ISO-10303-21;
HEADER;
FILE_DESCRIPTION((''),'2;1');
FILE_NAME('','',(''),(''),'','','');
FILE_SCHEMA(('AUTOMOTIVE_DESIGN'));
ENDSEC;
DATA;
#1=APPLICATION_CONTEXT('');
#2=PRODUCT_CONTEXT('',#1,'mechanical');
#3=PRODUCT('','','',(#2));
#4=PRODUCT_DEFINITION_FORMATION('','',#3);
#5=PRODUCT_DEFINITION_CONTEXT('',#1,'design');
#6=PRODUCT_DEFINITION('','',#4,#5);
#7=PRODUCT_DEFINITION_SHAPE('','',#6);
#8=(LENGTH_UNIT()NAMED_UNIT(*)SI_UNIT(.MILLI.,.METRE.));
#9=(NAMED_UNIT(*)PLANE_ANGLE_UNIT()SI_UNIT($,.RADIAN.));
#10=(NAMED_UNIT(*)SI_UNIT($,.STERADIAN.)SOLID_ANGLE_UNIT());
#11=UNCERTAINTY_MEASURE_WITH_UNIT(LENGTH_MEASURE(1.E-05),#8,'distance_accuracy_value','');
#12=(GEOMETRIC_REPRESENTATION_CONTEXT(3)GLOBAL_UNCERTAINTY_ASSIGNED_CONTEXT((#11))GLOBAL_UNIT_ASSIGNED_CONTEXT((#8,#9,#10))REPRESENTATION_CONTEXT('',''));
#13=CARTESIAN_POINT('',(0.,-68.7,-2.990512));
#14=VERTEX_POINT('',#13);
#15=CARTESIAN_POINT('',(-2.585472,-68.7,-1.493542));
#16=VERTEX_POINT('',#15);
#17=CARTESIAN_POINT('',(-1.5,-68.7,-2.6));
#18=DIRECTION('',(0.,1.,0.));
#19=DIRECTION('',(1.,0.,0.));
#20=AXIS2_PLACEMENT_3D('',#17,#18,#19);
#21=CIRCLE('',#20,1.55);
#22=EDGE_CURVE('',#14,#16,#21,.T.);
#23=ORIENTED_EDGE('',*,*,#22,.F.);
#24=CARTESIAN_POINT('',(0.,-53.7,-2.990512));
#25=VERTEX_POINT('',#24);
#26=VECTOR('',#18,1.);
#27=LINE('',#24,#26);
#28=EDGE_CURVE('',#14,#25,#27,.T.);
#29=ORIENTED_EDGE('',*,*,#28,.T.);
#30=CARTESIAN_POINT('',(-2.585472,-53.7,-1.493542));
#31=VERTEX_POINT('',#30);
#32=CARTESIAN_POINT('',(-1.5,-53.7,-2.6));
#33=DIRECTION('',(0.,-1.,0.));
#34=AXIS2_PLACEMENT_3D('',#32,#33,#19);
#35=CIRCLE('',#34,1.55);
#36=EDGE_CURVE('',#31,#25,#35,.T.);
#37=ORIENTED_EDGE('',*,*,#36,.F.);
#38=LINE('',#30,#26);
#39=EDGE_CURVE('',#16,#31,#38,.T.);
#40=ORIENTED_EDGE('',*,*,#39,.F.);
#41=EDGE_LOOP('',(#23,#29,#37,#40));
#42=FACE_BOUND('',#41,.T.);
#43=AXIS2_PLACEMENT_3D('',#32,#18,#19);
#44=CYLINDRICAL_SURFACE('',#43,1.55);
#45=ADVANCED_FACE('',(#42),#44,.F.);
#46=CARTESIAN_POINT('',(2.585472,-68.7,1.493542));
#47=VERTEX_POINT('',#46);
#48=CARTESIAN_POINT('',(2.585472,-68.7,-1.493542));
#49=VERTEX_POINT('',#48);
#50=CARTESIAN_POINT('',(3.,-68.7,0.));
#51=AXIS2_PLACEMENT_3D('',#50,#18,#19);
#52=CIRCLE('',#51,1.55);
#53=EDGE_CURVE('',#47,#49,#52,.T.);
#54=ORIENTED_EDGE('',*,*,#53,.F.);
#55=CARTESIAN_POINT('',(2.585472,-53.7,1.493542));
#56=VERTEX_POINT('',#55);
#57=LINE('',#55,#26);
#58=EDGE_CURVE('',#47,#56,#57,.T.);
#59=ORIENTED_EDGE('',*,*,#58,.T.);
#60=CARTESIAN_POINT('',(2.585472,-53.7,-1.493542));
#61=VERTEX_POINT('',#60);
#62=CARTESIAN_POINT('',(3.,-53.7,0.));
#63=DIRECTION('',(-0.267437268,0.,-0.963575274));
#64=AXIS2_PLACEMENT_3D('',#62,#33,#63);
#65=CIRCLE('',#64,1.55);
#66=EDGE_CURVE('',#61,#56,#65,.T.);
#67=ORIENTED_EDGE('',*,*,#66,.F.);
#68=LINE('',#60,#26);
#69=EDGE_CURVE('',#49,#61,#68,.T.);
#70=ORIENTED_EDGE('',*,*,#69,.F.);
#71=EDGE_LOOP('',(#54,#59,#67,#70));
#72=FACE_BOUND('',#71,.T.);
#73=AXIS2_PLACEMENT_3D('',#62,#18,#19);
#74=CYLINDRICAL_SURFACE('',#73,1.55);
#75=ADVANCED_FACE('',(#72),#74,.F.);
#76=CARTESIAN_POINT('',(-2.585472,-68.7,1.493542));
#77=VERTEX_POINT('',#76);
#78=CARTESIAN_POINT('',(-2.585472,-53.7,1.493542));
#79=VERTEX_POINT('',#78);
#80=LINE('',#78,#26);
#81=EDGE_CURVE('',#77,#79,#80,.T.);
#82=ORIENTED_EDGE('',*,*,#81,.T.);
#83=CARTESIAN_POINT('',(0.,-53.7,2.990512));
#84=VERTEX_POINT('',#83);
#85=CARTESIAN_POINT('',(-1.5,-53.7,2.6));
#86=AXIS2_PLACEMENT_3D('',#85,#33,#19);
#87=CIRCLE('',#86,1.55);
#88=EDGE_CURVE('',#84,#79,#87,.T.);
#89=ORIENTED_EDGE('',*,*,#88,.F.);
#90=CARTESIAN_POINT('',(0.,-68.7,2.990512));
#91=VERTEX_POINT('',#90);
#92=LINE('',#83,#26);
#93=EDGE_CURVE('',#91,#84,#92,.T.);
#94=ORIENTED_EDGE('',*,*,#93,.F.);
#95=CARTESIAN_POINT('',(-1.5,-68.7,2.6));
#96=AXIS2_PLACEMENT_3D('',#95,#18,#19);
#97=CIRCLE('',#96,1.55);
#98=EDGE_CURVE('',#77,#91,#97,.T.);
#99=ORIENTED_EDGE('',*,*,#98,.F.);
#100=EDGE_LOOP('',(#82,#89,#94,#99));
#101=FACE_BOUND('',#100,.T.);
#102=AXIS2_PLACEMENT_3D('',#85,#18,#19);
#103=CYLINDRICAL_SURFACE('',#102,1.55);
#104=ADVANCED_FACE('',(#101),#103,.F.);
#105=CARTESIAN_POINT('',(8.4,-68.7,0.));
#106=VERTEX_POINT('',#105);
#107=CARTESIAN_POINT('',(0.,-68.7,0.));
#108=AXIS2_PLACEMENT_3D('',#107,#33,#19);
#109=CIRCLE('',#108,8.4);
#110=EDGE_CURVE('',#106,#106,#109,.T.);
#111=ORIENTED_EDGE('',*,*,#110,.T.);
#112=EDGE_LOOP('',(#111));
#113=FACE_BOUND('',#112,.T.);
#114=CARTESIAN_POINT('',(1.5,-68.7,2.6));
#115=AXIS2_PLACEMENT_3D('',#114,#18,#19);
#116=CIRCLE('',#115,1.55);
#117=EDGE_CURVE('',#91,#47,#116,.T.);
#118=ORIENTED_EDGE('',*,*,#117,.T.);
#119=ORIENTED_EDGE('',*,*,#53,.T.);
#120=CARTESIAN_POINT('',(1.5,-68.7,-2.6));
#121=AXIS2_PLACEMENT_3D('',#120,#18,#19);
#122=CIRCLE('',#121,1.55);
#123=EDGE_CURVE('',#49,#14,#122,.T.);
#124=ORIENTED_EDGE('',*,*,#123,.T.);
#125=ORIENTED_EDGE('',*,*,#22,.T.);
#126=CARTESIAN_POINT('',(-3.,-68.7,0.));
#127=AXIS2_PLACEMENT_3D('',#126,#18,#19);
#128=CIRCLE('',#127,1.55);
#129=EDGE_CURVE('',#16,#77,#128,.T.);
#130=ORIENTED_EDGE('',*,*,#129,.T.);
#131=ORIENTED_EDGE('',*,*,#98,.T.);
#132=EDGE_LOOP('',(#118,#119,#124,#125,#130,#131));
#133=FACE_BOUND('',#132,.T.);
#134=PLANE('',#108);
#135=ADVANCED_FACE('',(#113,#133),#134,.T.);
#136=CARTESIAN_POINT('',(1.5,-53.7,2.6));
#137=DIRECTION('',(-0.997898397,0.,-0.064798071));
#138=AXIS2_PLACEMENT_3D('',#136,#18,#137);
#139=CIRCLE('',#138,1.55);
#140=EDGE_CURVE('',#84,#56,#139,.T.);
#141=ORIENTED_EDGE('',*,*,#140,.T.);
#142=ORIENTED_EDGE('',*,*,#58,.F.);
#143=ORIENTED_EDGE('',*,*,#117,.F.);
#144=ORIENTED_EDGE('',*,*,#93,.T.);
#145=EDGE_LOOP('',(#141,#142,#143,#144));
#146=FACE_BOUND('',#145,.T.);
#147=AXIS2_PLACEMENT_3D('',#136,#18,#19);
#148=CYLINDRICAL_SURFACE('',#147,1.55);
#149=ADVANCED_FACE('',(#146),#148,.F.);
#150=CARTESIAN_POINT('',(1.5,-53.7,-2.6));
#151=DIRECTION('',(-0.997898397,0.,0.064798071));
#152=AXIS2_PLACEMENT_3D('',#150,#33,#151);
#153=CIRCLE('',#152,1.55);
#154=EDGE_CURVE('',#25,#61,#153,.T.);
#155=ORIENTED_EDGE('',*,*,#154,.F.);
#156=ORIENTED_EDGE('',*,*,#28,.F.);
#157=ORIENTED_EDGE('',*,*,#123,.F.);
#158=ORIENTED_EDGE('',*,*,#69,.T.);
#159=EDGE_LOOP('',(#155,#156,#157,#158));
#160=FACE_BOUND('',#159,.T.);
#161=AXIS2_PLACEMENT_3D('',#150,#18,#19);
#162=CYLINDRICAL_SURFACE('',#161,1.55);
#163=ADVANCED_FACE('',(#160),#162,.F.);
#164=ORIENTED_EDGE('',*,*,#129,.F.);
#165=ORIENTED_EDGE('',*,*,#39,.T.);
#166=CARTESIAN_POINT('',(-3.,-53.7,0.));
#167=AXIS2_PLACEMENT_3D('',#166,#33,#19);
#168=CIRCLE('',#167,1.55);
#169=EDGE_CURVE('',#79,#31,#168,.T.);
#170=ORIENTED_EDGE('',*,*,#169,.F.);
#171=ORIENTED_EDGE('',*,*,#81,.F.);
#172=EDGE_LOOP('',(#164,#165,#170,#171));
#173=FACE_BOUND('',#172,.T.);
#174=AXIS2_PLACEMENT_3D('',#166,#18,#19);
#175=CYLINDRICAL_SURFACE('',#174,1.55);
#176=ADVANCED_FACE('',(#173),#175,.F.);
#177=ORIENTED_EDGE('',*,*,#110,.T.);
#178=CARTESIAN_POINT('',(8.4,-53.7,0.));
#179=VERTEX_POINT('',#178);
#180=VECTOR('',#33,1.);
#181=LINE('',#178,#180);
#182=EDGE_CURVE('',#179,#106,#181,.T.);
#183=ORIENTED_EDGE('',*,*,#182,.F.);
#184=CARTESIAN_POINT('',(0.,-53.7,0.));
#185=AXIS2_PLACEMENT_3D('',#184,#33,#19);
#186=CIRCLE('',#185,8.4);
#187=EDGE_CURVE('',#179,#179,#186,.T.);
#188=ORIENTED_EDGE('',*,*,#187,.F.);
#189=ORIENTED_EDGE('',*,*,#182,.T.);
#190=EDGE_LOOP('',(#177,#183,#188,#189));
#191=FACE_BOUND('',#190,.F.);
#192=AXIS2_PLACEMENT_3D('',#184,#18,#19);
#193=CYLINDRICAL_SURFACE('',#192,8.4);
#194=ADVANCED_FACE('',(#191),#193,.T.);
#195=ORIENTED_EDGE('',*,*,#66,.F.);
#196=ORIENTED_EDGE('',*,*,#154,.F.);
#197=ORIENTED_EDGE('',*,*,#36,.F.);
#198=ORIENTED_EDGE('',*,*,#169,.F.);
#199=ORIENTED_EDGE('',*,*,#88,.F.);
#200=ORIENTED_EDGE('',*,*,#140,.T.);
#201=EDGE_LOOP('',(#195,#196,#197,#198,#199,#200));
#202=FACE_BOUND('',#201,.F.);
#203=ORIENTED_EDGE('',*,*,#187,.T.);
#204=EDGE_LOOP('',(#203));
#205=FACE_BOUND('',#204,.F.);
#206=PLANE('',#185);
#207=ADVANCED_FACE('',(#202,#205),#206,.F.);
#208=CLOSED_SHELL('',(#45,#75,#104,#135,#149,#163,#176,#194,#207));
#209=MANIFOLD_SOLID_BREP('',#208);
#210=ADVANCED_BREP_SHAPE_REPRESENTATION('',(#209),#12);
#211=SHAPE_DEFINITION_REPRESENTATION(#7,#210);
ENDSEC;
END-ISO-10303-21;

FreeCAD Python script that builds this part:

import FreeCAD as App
import Part
import Sketcher
from FreeCAD import Vector

doc = App.newDocument("Part")
body = doc.addObject("PartDesign::Body", "Body")

# Sketch on XY plane
sketch1 = body.newObject("Sketcher::SketchObject", "Sketch")
sketch1.AttachmentSupport = (doc.getObject("XY_Plane"), [""])
sketch1.MapMode = "FlatFace"
sketch1.addGeometry(Part.Circle(Vector(0, 0, 0), Vector(0, 0, 1), 2.5), False)
sketch1.addConstraint(Sketcher.Constraint("Coincident", 0, 3, -1, 1))
sketch1.addConstraint(Sketcher.Constraint("Diameter", 0, 5.0))
pad1 = body.newObject("PartDesign::Pad", "Pad")
pad1.Profile = sketch1
pad1.Length = 17
body2 = doc.addObject("PartDesign::Body", "Body001")

# Sketch on XY plane
sketch2 = body2.newObject("Sketcher::SketchObject", "Sketch001")
sketch2.AttachmentSupport = (doc.getObject("XY_Plane001"), [""])
sketch2.MapMode = "FlatFace"
sketch2.addGeometry(Part.Circle(Vector(1.5, -2.6, 0), Vector(0, 0, 1), 1.6), False)
sketch2.addConstraint(Sketcher.Constraint("Diameter", 0, 3.1))
sketch2.addConstraint(Sketcher.Constraint("DistanceX", -1, 1, 0, 3, 1.5))
sketch2.addConstraint(Sketcher.Constraint("DistanceY", 0, 3, -1, 1, 2.6))
pad2 = body2.newObject("PartDesign::Pad", "Pad001")
pad2.Profile = sketch2
pad2.Length = 17
body3 = doc.addObject("PartDesign::Body", "Body002")

# Sketch on XY plane
sketch3 = body3.newObject("Sketcher::SketchObject", "Sketch002")
sketch3.AttachmentSupport = (doc.getObject("XY_Plane002"), [""])
sketch3.MapMode = "FlatFace"
sketch3.addGeometry(Part.Circle(Vector(3, 0, 0), Vector(0, 0, 1), 1.6), False)
sketch3.addConstraint(Sketcher.Constraint("PointOnObject", 0, 3, -1))
sketch3.addConstraint(Sketcher.Constraint("Diameter", 0, 3.1))
sketch3.addConstraint(Sketcher.Constraint("DistanceX", -1, 1, 0, 3, 3.0))
pad3 = body3.newObject("PartDesign::Pad", "Pad002")
pad3.Profile = sketch3
pad3.Length = 17
body4 = doc.addObject("PartDesign::Body", "Body003")

# Sketch on XY plane
sketch4 = body4.newObject("Sketcher::SketchObject", "Sketch003")
sketch4.AttachmentSupport = (doc.getObject("XY_Plane003"), [""])
sketch4.MapMode = "FlatFace"
sketch4.addGeometry(Part.Circle(Vector(-3, 0, 0), Vector(0, 0, 1), 1.6), False)
sketch4.addConstraint(Sketcher.Constraint("PointOnObject", 0, 3, -1))
sketch4.addConstraint(Sketcher.Constraint("Diameter", 0, 3.1))
sketch4.addConstraint(Sketcher.Constraint("DistanceX", 0, 3, -1, 1, 3.0))
pad4 = body4.newObject("PartDesign::Pad", "Pad003")
pad4.Profile = sketch4
pad4.Length = 17
body5 = doc.addObject("PartDesign::Body", "Body004")

# Sketch on XY plane
sketch5 = body5.newObject("Sketcher::SketchObject", "Sketch004")
sketch5.AttachmentSupport = (doc.getObject("XY_Plane004"), [""])
sketch5.MapMode = "FlatFace"
sketch5.addGeometry(Part.Circle(Vector(-1.5, 2.6, 0), Vector(0, 0, 1), 1.6), False)
sketch5.addConstraint(Sketcher.Constraint("Diameter", 0, 3.1))
sketch5.addConstraint(Sketcher.Constraint("DistanceX", 0, 3, -1, 1, 1.5))
sketch5.addConstraint(Sketcher.Constraint("DistanceY", -1, 1, 0, 3, 2.6))
pad5 = body5.newObject("PartDesign::Pad", "Pad004")
pad5.Profile = sketch5
pad5.Length = 17
body6 = doc.addObject("PartDesign::Body", "Body005")

# Sketch on XY plane
sketch6 = body6.newObject("Sketcher::SketchObject", "Sketch005")
sketch6.AttachmentSupport = (doc.getObject("XY_Plane005"), [""])
sketch6.MapMode = "FlatFace"
sketch6.addGeometry(Part.Circle(Vector(-1.5, -2.6, 0), Vector(0, 0, 1), 1.6), False)
sketch6.addConstraint(Sketcher.Constraint("Diameter", 0, 3.1))
sketch6.addConstraint(Sketcher.Constraint("DistanceX", 0, 3, -1, 1, 1.5))
sketch6.addConstraint(Sketcher.Constraint("DistanceY", 0, 3, -1, 1, 2.6))
pad6 = body6.newObject("PartDesign::Pad", "Pad005")
pad6.Profile = sketch6
pad6.Length = 17
body7 = doc.addObject("PartDesign::Body", "Body006")

# Sketch on XY plane
sketch7 = body7.newObject("Sketcher::SketchObject", "Sketch006")
sketch7.AttachmentSupport = (doc.getObject("XY_Plane006"), [""])
sketch7.MapMode = "FlatFace"
sketch7.addGeometry(Part.Circle(Vector(1.5, 2.6, 0), Vector(0, 0, 1), 1.6), False)
sketch7.addConstraint(Sketcher.Constraint("Diameter", 0, 3.1))
sketch7.addConstraint(Sketcher.Constraint("DistanceX", -1, 1, 0, 3, 1.5))
sketch7.addConstraint(Sketcher.Constraint("DistanceY", -1, 1, 0, 3, 2.6))
pad7 = body7.newObject("PartDesign::Pad", "Pad006")
pad7.Profile = sketch7
pad7.Length = 17
doc.recompute()

boolean = body7.newObject("PartDesign::Boolean", "Boolean")
boolean.Type = "Fuse"
boolean.addObjects([body])
doc.recompute()

boolean2 = body7.newObject("PartDesign::Boolean", "Boolean001")
boolean2.Type = "Fuse"
boolean2.addObjects([body2])
doc.recompute()

boolean3 = body7.newObject("PartDesign::Boolean", "Boolean002")
boolean3.Type = "Fuse"
boolean3.addObjects([body3])
doc.recompute()

boolean4 = body7.newObject("PartDesign::Boolean", "Boolean003")
boolean4.Type = "Fuse"
boolean4.addObjects([body4])
doc.recompute()

boolean5 = body7.newObject("PartDesign::Boolean", "Boolean004")
boolean5.Type = "Fuse"
boolean5.addObjects([body5])
doc.recompute()

boolean6 = body7.newObject("PartDesign::Boolean", "Boolean005")
boolean6.Type = "Fuse"
boolean6.addObjects([body6])
body8 = doc.addObject("PartDesign::Body", "Body007")

# Sketch on XY plane
sketch8 = body8.newObject("Sketcher::SketchObject", "Sketch007")
sketch8.AttachmentSupport = (doc.getObject("XY_Plane007"), [""])
sketch8.MapMode = "FlatFace"
sketch8.addGeometry(Part.Circle(Vector(0, 0, 0), Vector(0, 0, 1), 8), False)
sketch8.addConstraint(Sketcher.Constraint("Coincident", 0, 3, -1, 1))
sketch8.addConstraint(Sketcher.Constraint("Diameter", 0, 16.8))
pad8 = body8.newObject("PartDesign::Pad", "Pad007")
pad8.Profile = sketch8
pad8.Length = 15
doc.recompute()

boolean7 = body8.newObject("PartDesign::Boolean", "Boolean006")
boolean7.Type = "Cut"
boolean7.addObjects([body7])
body9 = doc.addObject("PartDesign::Body", "Body008")
doc.recompute()

body8.Placement = App.Placement(Vector(0, -53.7, 0), App.Rotation(Vector(1, 0, 0), 90))
boolean8 = body9.newObject("PartDesign::Boolean", "Boolean007")
boolean8.Type = "Fuse"
boolean8.addObjects([body8])

doc.recompute()
